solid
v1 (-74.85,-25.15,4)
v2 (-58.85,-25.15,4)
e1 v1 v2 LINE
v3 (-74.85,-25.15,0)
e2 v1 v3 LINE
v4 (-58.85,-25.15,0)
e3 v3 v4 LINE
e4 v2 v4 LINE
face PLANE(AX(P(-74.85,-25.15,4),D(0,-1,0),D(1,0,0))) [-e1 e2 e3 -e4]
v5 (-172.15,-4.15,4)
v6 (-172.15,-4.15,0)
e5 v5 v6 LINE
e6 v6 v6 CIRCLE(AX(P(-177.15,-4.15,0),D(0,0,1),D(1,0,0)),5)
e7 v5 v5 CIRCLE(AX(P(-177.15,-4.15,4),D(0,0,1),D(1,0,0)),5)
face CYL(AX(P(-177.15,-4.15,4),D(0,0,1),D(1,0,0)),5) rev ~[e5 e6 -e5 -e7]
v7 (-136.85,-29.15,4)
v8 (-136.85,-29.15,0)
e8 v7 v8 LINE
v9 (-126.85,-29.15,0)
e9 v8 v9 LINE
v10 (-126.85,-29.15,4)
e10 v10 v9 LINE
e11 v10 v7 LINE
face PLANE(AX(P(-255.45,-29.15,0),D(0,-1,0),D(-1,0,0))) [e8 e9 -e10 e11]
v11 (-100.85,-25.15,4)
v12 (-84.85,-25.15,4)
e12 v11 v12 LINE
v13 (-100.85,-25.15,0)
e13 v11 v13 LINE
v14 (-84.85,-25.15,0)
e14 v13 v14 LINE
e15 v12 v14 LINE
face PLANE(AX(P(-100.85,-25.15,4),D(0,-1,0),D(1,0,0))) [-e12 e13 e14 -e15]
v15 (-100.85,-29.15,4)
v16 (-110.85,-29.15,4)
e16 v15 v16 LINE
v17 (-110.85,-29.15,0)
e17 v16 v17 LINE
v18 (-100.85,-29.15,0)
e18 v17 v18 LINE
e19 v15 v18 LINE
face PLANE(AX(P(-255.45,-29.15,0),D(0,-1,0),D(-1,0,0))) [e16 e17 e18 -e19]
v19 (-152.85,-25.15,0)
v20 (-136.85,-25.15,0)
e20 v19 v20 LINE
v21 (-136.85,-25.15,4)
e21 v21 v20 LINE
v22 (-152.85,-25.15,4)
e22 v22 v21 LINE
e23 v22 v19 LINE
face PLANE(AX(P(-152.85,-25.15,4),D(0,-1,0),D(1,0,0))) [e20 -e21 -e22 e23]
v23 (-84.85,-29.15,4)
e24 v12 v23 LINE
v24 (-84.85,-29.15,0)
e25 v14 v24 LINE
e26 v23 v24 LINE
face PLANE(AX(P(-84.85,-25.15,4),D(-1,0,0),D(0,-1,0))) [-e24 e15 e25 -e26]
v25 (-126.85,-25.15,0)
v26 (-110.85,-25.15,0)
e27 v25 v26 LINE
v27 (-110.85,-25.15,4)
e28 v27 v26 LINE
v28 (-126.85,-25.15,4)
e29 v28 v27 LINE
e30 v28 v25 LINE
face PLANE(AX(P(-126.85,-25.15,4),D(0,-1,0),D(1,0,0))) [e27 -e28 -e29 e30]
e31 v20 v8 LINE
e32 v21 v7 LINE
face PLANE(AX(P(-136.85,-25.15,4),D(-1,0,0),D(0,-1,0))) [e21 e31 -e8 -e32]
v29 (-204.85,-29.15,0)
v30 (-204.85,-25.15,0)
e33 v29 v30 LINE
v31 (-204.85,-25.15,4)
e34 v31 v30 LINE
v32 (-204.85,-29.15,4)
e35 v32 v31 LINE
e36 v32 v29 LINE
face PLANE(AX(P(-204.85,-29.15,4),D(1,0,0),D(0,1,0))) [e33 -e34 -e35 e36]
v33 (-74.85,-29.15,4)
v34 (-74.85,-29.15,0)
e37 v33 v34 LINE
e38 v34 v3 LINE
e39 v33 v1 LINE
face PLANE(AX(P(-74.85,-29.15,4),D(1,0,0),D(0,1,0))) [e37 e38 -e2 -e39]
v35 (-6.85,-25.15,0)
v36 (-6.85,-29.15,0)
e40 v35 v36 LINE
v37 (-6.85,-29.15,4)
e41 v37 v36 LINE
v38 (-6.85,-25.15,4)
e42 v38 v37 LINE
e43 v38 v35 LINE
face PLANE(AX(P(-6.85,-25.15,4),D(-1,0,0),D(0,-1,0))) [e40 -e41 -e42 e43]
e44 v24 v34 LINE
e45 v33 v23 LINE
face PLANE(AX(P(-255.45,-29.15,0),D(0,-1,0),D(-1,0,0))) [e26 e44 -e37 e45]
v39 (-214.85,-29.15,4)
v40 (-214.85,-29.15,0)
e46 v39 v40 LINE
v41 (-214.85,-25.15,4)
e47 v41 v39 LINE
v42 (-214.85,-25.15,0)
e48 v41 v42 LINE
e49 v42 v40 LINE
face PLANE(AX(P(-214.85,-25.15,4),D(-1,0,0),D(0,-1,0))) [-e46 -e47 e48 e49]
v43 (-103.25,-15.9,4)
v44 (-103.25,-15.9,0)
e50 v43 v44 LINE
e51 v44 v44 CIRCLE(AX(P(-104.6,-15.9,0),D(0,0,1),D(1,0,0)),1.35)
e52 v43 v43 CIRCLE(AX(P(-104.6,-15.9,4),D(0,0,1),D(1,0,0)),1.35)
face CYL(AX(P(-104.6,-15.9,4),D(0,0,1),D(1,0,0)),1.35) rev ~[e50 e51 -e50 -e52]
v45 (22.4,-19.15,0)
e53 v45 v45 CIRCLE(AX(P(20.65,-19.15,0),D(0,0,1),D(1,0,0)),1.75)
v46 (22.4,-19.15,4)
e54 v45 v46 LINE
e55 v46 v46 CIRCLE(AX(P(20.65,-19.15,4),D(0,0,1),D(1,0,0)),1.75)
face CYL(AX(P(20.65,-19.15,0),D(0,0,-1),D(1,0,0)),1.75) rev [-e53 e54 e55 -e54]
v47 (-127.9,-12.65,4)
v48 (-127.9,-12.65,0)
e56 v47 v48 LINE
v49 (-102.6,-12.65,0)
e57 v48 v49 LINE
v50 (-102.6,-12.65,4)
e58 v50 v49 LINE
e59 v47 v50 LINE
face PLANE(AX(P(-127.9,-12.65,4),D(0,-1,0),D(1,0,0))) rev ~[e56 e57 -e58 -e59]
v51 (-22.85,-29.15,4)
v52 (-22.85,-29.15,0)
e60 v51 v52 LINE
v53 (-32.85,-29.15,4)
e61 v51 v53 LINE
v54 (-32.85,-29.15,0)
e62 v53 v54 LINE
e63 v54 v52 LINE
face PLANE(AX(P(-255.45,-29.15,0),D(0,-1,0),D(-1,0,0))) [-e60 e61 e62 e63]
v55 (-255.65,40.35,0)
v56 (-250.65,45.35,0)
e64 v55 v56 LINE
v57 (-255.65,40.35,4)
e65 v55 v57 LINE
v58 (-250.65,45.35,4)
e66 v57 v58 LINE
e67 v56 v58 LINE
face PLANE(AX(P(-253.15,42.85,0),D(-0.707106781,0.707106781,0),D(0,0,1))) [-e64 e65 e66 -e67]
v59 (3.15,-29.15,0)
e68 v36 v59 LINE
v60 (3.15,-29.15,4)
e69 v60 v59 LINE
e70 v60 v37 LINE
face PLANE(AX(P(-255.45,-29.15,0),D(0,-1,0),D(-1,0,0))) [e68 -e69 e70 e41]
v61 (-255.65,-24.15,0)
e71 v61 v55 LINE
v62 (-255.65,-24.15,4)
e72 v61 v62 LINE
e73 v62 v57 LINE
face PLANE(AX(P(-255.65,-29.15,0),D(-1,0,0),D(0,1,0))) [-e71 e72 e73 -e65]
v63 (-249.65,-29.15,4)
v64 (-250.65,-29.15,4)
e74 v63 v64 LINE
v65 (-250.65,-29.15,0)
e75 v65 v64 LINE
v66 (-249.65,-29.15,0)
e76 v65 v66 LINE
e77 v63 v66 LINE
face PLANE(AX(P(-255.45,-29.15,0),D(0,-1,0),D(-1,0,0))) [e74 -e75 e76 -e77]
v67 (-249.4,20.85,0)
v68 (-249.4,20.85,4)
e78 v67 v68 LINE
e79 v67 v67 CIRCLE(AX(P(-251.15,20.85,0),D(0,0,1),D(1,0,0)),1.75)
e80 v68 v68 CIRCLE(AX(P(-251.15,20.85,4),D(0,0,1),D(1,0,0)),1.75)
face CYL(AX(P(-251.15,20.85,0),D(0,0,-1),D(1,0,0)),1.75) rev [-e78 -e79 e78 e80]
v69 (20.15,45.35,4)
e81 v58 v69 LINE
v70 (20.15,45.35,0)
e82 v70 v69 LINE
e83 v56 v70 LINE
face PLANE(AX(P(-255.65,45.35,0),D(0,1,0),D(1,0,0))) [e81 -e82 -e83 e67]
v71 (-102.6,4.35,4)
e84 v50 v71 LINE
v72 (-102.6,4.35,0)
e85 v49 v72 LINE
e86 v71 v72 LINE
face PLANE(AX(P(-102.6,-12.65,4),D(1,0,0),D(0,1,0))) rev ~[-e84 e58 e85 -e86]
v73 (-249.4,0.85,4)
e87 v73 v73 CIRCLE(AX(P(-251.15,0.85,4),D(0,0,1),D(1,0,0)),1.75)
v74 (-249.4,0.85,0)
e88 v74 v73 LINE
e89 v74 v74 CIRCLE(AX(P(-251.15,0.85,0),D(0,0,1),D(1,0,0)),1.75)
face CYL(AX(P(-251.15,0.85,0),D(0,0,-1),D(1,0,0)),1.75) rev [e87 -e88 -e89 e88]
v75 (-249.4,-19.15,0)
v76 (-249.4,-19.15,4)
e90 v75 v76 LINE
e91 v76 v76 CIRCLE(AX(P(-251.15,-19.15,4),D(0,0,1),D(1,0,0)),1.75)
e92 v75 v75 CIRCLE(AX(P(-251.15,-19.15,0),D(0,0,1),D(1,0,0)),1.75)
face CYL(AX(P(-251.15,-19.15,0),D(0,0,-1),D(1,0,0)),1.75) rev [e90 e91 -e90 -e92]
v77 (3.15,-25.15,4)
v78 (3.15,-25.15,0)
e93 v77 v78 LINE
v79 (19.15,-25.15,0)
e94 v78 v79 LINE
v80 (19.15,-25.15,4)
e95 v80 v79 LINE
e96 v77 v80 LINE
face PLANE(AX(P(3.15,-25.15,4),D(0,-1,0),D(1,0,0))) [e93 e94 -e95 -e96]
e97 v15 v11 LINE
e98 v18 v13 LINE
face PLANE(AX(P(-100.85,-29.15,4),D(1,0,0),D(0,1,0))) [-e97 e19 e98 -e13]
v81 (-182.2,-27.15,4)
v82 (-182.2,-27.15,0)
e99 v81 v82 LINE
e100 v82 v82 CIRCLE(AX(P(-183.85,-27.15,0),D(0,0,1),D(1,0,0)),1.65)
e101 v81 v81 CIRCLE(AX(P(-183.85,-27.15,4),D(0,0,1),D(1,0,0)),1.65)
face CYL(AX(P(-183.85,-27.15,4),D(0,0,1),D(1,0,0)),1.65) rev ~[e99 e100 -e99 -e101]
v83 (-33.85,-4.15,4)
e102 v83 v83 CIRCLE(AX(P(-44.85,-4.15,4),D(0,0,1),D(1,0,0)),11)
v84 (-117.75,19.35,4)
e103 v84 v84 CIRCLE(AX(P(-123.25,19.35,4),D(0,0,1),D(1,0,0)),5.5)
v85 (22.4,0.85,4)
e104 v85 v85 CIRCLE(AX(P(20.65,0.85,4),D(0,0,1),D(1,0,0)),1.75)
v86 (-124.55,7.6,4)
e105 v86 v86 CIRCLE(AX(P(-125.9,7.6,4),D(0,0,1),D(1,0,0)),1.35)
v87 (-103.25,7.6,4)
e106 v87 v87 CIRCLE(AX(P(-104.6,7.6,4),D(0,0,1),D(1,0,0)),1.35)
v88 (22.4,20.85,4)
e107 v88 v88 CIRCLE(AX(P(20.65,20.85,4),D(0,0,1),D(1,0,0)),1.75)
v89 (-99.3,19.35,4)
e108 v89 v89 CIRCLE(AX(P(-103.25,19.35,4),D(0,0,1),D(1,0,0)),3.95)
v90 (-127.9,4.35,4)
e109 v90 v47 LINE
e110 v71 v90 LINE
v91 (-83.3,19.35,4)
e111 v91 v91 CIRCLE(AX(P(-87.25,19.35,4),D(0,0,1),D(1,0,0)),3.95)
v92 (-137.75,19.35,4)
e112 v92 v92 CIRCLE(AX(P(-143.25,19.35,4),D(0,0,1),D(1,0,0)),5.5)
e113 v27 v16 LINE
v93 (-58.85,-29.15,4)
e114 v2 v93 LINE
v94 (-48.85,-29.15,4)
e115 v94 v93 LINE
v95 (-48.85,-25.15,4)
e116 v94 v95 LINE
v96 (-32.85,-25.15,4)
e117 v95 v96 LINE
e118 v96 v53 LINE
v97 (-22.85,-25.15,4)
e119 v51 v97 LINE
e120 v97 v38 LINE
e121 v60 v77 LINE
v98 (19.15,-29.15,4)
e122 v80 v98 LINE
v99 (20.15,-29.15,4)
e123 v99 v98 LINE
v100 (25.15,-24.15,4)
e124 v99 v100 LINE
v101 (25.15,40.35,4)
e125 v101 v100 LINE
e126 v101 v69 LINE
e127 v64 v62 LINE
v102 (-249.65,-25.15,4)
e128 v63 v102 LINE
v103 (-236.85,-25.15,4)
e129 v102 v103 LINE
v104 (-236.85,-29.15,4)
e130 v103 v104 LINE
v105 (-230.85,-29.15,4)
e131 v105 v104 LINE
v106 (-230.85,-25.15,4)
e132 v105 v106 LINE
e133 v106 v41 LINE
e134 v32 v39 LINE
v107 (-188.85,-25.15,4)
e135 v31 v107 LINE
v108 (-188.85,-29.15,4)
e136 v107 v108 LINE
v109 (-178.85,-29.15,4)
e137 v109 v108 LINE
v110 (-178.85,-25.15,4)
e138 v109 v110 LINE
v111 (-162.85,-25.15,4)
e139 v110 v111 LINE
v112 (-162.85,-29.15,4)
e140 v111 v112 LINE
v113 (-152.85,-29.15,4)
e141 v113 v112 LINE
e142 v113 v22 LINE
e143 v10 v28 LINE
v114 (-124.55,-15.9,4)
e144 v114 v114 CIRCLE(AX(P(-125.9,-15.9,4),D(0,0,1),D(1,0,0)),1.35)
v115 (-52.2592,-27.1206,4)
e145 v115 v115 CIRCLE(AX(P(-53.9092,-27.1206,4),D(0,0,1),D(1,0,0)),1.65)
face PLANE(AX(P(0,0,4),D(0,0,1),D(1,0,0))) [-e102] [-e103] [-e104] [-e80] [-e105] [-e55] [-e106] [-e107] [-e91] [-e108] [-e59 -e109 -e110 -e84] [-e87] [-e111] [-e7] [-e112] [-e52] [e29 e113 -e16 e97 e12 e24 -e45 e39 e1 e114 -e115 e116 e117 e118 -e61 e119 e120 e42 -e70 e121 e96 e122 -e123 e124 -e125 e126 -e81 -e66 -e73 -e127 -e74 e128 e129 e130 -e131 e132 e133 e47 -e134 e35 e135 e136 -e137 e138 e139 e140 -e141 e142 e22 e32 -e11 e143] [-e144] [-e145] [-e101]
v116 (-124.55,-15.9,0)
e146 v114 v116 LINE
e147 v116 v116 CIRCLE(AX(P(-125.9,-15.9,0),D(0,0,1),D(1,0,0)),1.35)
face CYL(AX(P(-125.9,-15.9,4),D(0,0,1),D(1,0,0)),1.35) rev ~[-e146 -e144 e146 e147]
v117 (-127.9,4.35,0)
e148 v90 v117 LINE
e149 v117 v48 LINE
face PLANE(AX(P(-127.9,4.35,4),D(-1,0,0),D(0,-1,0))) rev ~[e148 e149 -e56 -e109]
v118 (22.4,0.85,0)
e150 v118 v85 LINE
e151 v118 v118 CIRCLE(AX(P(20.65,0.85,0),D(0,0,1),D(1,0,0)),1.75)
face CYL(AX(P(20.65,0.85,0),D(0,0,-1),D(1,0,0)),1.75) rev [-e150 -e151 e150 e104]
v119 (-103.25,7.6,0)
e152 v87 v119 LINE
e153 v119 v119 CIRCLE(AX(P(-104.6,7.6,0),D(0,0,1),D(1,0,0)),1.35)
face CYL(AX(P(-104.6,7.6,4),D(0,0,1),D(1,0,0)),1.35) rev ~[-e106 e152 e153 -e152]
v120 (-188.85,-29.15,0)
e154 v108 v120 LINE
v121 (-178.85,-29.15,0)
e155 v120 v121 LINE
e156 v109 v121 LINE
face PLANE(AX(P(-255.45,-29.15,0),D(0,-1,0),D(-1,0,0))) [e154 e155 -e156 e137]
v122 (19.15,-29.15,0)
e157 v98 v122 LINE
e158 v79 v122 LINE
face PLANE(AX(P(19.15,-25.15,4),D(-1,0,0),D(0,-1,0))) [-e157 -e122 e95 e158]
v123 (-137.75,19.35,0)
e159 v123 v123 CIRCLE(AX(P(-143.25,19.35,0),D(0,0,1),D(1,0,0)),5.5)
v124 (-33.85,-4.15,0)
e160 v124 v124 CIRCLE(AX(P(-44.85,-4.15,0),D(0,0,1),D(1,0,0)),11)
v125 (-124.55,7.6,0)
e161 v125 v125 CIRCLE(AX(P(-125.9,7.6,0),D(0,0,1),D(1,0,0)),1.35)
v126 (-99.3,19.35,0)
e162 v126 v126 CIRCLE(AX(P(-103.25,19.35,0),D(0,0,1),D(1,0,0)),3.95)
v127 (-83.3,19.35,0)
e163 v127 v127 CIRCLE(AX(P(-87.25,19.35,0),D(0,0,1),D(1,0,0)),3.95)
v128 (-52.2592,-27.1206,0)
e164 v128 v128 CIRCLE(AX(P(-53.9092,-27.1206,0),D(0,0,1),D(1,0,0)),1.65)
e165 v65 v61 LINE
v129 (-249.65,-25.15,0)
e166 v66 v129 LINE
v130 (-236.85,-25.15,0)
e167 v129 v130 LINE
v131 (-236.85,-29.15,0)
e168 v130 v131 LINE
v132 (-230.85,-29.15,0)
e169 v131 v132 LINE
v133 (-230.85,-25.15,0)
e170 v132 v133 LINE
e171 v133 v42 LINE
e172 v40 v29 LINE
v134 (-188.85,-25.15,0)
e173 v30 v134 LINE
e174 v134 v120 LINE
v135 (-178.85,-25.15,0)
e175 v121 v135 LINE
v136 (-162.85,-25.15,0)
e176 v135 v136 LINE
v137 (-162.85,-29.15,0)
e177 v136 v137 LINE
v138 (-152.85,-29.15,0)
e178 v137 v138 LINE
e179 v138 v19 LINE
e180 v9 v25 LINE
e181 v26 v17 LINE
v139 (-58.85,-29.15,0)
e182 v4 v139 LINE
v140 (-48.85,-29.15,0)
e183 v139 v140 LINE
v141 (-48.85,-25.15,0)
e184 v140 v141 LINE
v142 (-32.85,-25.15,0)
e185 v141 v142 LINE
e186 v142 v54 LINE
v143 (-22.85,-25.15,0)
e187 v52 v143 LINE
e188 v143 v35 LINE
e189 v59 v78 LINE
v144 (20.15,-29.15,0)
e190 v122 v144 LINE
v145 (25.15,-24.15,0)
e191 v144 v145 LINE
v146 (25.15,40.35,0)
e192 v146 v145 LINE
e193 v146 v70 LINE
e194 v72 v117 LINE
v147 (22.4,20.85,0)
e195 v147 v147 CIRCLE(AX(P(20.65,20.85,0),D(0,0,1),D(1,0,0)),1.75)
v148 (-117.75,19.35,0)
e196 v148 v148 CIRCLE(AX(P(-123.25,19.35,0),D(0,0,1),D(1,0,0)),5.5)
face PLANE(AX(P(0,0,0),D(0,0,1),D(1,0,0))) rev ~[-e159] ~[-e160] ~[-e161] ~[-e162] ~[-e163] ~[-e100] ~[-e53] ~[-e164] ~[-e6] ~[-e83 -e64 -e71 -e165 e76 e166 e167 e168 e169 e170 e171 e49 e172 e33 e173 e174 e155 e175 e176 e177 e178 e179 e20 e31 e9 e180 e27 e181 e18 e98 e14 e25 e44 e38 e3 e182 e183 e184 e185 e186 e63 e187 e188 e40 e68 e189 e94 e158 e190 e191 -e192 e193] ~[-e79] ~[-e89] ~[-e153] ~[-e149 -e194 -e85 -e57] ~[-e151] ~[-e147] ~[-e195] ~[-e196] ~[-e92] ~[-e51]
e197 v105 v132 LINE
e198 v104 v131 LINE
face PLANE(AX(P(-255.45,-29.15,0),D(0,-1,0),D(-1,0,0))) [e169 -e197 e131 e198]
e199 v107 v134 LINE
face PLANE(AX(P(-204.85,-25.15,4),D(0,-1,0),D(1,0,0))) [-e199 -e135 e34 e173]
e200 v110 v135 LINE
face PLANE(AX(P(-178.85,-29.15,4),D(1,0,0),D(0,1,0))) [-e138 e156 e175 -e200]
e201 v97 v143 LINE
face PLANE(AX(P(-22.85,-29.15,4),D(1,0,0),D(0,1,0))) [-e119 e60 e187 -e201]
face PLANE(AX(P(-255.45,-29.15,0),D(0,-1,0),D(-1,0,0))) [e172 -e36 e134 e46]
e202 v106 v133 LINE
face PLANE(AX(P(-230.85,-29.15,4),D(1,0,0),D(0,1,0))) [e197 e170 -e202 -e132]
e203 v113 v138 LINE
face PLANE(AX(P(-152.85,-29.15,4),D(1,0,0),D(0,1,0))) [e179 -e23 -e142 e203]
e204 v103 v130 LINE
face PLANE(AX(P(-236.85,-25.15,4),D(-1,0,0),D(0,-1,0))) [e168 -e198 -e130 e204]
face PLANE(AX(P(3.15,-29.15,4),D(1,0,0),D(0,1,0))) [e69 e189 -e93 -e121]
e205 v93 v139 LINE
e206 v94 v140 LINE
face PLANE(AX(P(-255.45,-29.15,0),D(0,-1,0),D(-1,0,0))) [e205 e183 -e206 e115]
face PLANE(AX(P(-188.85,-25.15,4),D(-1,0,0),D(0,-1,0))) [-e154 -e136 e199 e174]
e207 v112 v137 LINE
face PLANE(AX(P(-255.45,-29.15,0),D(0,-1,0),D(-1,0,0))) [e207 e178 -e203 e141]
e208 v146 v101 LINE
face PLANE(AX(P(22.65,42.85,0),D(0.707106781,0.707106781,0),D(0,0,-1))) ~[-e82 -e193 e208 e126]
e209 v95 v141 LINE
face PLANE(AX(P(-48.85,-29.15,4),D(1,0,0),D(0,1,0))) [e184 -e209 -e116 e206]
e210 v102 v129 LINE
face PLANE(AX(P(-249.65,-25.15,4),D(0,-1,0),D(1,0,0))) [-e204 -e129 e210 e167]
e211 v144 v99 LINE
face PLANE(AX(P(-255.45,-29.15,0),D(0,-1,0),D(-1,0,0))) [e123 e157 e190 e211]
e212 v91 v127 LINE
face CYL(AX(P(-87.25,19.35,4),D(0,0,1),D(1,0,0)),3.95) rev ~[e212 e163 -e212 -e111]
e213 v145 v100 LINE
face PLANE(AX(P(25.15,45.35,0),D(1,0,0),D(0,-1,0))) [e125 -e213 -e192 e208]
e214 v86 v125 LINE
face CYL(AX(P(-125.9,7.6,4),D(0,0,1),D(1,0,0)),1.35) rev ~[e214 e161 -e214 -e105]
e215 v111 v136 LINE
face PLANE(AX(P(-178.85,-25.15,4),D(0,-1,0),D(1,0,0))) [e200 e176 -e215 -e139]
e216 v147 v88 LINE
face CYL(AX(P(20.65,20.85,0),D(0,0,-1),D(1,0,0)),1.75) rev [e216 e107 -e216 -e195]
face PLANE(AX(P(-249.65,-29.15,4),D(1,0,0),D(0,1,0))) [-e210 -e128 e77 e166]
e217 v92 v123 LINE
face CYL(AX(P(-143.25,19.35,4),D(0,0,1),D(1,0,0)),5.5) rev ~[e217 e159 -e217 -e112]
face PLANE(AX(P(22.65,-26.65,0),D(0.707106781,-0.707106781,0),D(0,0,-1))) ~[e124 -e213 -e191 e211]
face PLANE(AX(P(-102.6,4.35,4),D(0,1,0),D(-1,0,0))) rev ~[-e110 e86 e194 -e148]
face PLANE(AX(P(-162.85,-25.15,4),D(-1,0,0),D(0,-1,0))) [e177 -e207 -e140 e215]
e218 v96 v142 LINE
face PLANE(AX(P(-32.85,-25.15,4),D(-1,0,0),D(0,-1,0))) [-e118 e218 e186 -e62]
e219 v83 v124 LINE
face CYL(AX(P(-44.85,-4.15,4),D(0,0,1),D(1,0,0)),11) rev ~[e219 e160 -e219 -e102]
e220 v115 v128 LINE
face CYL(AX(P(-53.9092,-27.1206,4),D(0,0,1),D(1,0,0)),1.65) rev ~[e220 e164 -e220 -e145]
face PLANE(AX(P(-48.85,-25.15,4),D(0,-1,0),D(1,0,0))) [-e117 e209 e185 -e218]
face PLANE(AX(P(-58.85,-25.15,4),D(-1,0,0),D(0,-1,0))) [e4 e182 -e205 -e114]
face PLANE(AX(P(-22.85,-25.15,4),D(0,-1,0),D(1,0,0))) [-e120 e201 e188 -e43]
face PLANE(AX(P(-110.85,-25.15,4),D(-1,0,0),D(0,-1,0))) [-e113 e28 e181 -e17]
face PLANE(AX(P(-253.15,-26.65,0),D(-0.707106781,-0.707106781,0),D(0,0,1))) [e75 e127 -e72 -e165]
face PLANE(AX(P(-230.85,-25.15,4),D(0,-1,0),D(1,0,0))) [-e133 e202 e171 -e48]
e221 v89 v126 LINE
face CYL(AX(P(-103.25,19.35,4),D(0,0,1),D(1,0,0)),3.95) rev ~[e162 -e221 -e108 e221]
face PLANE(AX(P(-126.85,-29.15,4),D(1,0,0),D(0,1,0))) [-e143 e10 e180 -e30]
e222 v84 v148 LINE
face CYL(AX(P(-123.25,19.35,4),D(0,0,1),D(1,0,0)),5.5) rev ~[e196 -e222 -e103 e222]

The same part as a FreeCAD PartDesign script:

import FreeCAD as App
import Part
import Sketcher


def edges_at(feature, points):
    """Names of the edges that pass closest to the given points."""
    edges = feature.Shape.Edges
    near = lambda p: min(range(len(edges)), key=lambda i: edges[i].distToShape(Part.Vertex(*p))[0])
    return sorted({f"Edge{near(p) + 1}" for p in points})

doc = App.newDocument("Part")
params = doc.addObject("Spreadsheet::Sheet", "Params")
for row, (alias, value) in enumerate([
    ("sketch1_diameter", "3.5 mm"),
    ("sketch1_width", "280.8 mm"),
    ("sketch1_height", "74.5 mm"),
    ("pad1_length", "4 mm"),
    ("sketch2_diameter", "10 mm"),
    ("pocket1_length", "10 mm"),
    ("sketch3_diameter", "2.7 mm"),
    ("sketch3_height", "17 mm"),
    ("sketch3_width", "25.3 mm"),
    ("pocket2_length", "10 mm"),
    ("sketch4_diameter", "22 mm"),
    ("sketch4_diameter2", "11 mm"),
    ("sketch4_diameter3", "7.9 mm"),
    ("pocket3_length", "10 mm"),
    ("chamfer_size", "5 mm"),
    ("sketch5_width", "16 mm"),
    ("sketch5_height", "4 mm"),
    ("sketch5_width2", "12.8 mm"),
    ("pocket4_length", "4 mm"),
    ("sketch6_diameter", "3.3 mm"),
    ("pocket5_length", "4 mm"),
], start=1):
    params.set(f"A{row}", alias)
    params.set(f"B{row}", "=" + value)
    params.setAlias(f"B{row}", alias)

body = doc.addObject("PartDesign::Body", "Body")

sketch1 = doc.addObject("Sketcher::SketchObject", "Sketch")
body.addObject(sketch1)
sketch1.AttachmentSupport = (doc.XY_Plane, [""])
sketch1.MapMode = "FlatFace"
sketch1.addGeometry(Part.LineSegment(App.Vector(-255.7, -29.1, 0), App.Vector(25.1, -29.1, 0)), False)
sketch1.addGeometry(Part.LineSegment(App.Vector(25.1, -29.1, 0), App.Vector(25.1, 45.4, 0)), False)
sketch1.addGeometry(Part.LineSegment(App.Vector(25.1, 45.4, 0), App.Vector(-255.7, 45.4, 0)), False)
sketch1.addGeometry(Part.LineSegment(App.Vector(-255.7, 45.4, 0), App.Vector(-255.7, -29.1, 0)), False)
sketch1.addGeometry(Part.Circle(App.Vector(-251.2, -19.1, 0), App.Vector(0, 0, 1), 1.8), False)
sketch1.addGeometry(Part.Circle(App.Vector(-251.2, 0.8, 0), App.Vector(0, 0, 1), 1.8), False)
sketch1.addGeometry(Part.Circle(App.Vector(20.6, -19.1, 0), App.Vector(0, 0, 1), 1.8), False)
sketch1.addGeometry(Part.Circle(App.Vector(20.6, 0.8, 0), App.Vector(0, 0, 1), 1.8), False)
sketch1.addGeometry(Part.Circle(App.Vector(-251.2, 20.9, 0), App.Vector(0, 0, 1), 1.8), False)
sketch1.addGeometry(Part.Circle(App.Vector(20.6, 20.9, 0), App.Vector(0, 0, 1), 1.8), False)
sketch1.addConstraint(Sketcher.Constraint("Coincident", 0, 2, 1, 1))
sketch1.addConstraint(Sketcher.Constraint("Coincident", 1, 2, 2, 1))
sketch1.addConstraint(Sketcher.Constraint("Coincident", 2, 2, 3, 1))
sketch1.addConstraint(Sketcher.Constraint("Coincident", 3, 2, 0, 1))
sketch1.addConstraint(Sketcher.Constraint("Horizontal", 0))
sketch1.addConstraint(Sketcher.Constraint("Vertical", 1))
sketch1.addConstraint(Sketcher.Constraint("Horizontal", 2))
sketch1.addConstraint(Sketcher.Constraint("Vertical", 3))
sketch1.addConstraint(Sketcher.Constraint("Equal", 4, 5))
sketch1.addConstraint(Sketcher.Constraint("Equal", 5, 6))
sketch1.addConstraint(Sketcher.Constraint("Equal", 6, 7))
sketch1.addConstraint(Sketcher.Constraint("Equal", 7, 8))
sketch1.addConstraint(Sketcher.Constraint("Equal", 8, 9))
sketch1.addConstraint(Sketcher.Constraint("Horizontal", 4, 3, 6, 3))
sketch1.addConstraint(Sketcher.Constraint("Horizontal", 5, 3, 7, 3))
sketch1.addConstraint(Sketcher.Constraint("Horizontal", 8, 3, 9, 3))
sketch1.addConstraint(Sketcher.Constraint("Vertical", 4, 3, 5, 3))
sketch1.addConstraint(Sketcher.Constraint("Vertical", 6, 3, 7, 3))
sketch1.addConstraint(Sketcher.Constraint("Vertical", 5, 3, 8, 3))
sketch1.addConstraint(Sketcher.Constraint("Vertical", 7, 3, 9, 3))
sketch1.addConstraint(Sketcher.Constraint("Diameter", 4, 3.5))
sketch1.addConstraint(Sketcher.Constraint("DistanceX", 0, 1, 0, 2, 280.8))
sketch1.addConstraint(Sketcher.Constraint("DistanceY", 1, 1, 1, 2, 74.5))
sketch1.addConstraint(Sketcher.Constraint("DistanceY", 4, 3, 5, 3, 20.0))
sketch1.addConstraint(Sketcher.Constraint("DistanceY", 5, 3, 8, 3, 20.0))
sketch1.addConstraint(Sketcher.Constraint("DistanceY", 0, 2, 6, 3, 10.0))
sketch1.addConstraint(Sketcher.Constraint("DistanceX", 4, 3, 6, 3, 271.8))
sketch1.addConstraint(Sketcher.Constraint("DistanceX", 6, 3, 0, 2, 4.5))
sketch1.addConstraint(Sketcher.Constraint("DistanceX", 4, 3, -1, 1, 251.15))
sketch1.addConstraint(Sketcher.Constraint("DistanceY", 4, 3, -1, 1, 19.15))
sketch1.setExpression("Constraints[20]", "Params.sketch1_diameter")
sketch1.setExpression("Constraints[21]", "Params.sketch1_width")
sketch1.setExpression("Constraints[22]", "Params.sketch1_height")
pad1 = doc.addObject("PartDesign::Pad", "Pad")
body.addObject(pad1)
pad1.Profile = sketch1
pad1.setExpression("Length", "Params.pad1_length")

sketch2 = doc.addObject("Sketcher::SketchObject", "Sketch001")
body.addObject(sketch2)
sketch2.AttachmentSupport = (doc.XY_Plane, [""])
sketch2.MapMode = "FlatFace"
sketch2.AttachmentOffset = App.Placement(App.Vector(0, 0, 4), App.Rotation())
sketch2.addGeometry(Part.Circle(App.Vector(-177, -4, 0), App.Vector(0, 0, 1), 5), False)
sketch2.addConstraint(Sketcher.Constraint("Diameter", 0, 10.0))
sketch2.addConstraint(Sketcher.Constraint("DistanceX", 0, 3, -1, 1, 177.15))
sketch2.addConstraint(Sketcher.Constraint("DistanceY", 0, 3, -1, 1, 4.15))
sketch2.setExpression("Constraints[0]", "Params.sketch2_diameter")
pocket1 = doc.addObject("PartDesign::Pocket", "Pocket")
body.addObject(pocket1)
pocket1.Profile = sketch2
pocket1.setExpression("Length", "Params.pocket1_length")

sketch3 = doc.addObject("Sketcher::SketchObject", "Sketch002")
body.addObject(sketch3)
sketch3.AttachmentSupport = (doc.XY_Plane, [""])
sketch3.MapMode = "FlatFace"
sketch3.AttachmentOffset = App.Placement(App.Vector(0, 0, 4), App.Rotation())
sketch3.addGeometry(Part.LineSegment(App.Vector(-127.9, 4.3, 0), App.Vector(-127.9, -12.7, 0)), False)
sketch3.addGeometry(Part.LineSegment(App.Vector(-127.9, -12.7, 0), App.Vector(-102.6, -12.7, 0)), False)
sketch3.addGeometry(Part.LineSegment(App.Vector(-102.6, -12.7, 0), App.Vector(-102.6, 4.3, 0)), False)
sketch3.addGeometry(Part.LineSegment(App.Vector(-102.6, 4.3, 0), App.Vector(-127.9, 4.3, 0)), False)
sketch3.addGeometry(Part.Circle(App.Vector(-125.9, -15.9, 0), App.Vector(0, 0, 1), 1.4), False)
sketch3.addGeometry(Part.Circle(App.Vector(-104.6, -15.9, 0), App.Vector(0, 0, 1), 1.4), False)
sketch3.addGeometry(Part.Circle(App.Vector(-125.9, 7.6, 0), App.Vector(0, 0, 1), 1.4), False)
sketch3.addGeometry(Part.Circle(App.Vector(-104.6, 7.6, 0), App.Vector(0, 0, 1), 1.4), False)
sketch3.addConstraint(Sketcher.Constraint("Coincident", 0, 2, 1, 1))
sketch3.addConstraint(Sketcher.Constraint("Coincident", 1, 2, 2, 1))
sketch3.addConstraint(Sketcher.Constraint("Coincident", 2, 2, 3, 1))
sketch3.addConstraint(Sketcher.Constraint("Coincident", 3, 2, 0, 1))
sketch3.addConstraint(Sketcher.Constraint("Vertical", 0))
sketch3.addConstraint(Sketcher.Constraint("Horizontal", 1))
sketch3.addConstraint(Sketcher.Constraint("Vertical", 2))
sketch3.addConstraint(Sketcher.Constraint("Horizontal", 3))
sketch3.addConstraint(Sketcher.Constraint("Equal", 4, 5))
sketch3.addConstraint(Sketcher.Constraint("Equal", 5, 6))
sketch3.addConstraint(Sketcher.Constraint("Equal", 6, 7))
sketch3.addConstraint(Sketcher.Constraint("Horizontal", 4, 3, 5, 3))
sketch3.addConstraint(Sketcher.Constraint("Horizontal", 6, 3, 7, 3))
sketch3.addConstraint(Sketcher.Constraint("Vertical", 4, 3, 6, 3))
sketch3.addConstraint(Sketcher.Constraint("Vertical", 5, 3, 7, 3))
sketch3.addConstraint(Sketcher.Constraint("Diameter", 4, 2.7))
sketch3.addConstraint(Sketcher.Constraint("DistanceY", 0, 2, 0, 1, 17.0))
sketch3.addConstraint(Sketcher.Constraint("DistanceX", 1, 1, 1, 2, 25.3))
sketch3.addConstraint(Sketcher.Constraint("DistanceX", 0, 2, 4, 3, 2.0))
sketch3.addConstraint(Sketcher.Constraint("DistanceX", 5, 3, 1, 2, 2.0))
sketch3.addConstraint(Sketcher.Constraint("DistanceY", 4, 3, 0, 2, 3.25))
sketch3.addConstraint(Sketcher.Constraint("DistanceY", 2, 2, 7, 3, 3.25))
sketch3.addConstraint(Sketcher.Constraint("DistanceX", 4, 3, -1, 1, 125.9))
sketch3.addConstraint(Sketcher.Constraint("DistanceY", 4, 3, -1, 1, 15.9))
sketch3.setExpression("Constraints[15]", "Params.sketch3_diameter")
sketch3.setExpression("Constraints[16]", "Params.sketch3_height")
sketch3.setExpression("Constraints[17]", "Params.sketch3_width")
pocket2 = doc.addObject("PartDesign::Pocket", "Pocket001")
body.addObject(pocket2)
pocket2.Profile = sketch3
pocket2.setExpression("Length", "Params.pocket2_length")

sketch4 = doc.addObject("Sketcher::SketchObject", "Sketch003")
body.addObject(sketch4)
sketch4.AttachmentSupport = (doc.XY_Plane, [""])
sketch4.MapMode = "FlatFace"
sketch4.AttachmentOffset = App.Placement(App.Vector(0, 0, 4), App.Rotation())
sketch4.addGeometry(Part.Circle(App.Vector(-44.9, -4.2, 0), App.Vector(0, 0, 1), 11), False)
sketch4.addGeometry(Part.Circle(App.Vector(-87.2, 19.4, 0), App.Vector(0, 0, 1), 4), False)
sketch4.addGeometry(Part.Circle(App.Vector(-103.2, 19.4, 0), App.Vector(0, 0, 1), 4), False)
sketch4.addGeometry(Part.Circle(App.Vector(-123.2, 19.4, 0), App.Vector(0, 0, 1), 5.5), False)
sketch4.addGeometry(Part.Circle(App.Vector(-143.2, 19.4, 0), App.Vector(0, 0, 1), 5.5), False)
sketch4.addConstraint(Sketcher.Constraint("Equal", 1, 2))
sketch4.addConstraint(Sketcher.Constraint("Equal", 3, 4))
sketch4.addConstraint(Sketcher.Constraint("Horizontal", 1, 3, 2, 3))
sketch4.addConstraint(Sketcher.Constraint("Horizontal", 2, 3, 3, 3))
sketch4.addConstraint(Sketcher.Constraint("Horizontal", 3, 3, 4, 3))
sketch4.addConstraint(Sketcher.Constraint("Diameter", 0, 22.0))
sketch4.addConstraint(Sketcher.Constraint("Diameter", 3, 11.0))
sketch4.addConstraint(Sketcher.Constraint("Diameter", 1, 7.9))
sketch4.addConstraint(Sketcher.Constraint("DistanceX", 2, 3, 1, 3, 16.0))
sketch4.addConstraint(Sketcher.Constraint("DistanceX", 3, 3, 2, 3, 20.0))
sketch4.addConstraint(Sketcher.Constraint("DistanceX", 4, 3, 3, 3, 20.0))
sketch4.addConstraint(Sketcher.Constraint("DistanceX", 1, 3, 0, 3, 42.4))
sketch4.addConstraint(Sketcher.Constraint("DistanceY", 0, 3, 1, 3, 23.5))
sketch4.addConstraint(Sketcher.Constraint("DistanceX", 0, 3, -1, 1, 44.85))
sketch4.addConstraint(Sketcher.Constraint("DistanceY", 0, 3, -1, 1, 4.15))
sketch4.setExpression("Constraints[5]", "Params.sketch4_diameter")
sketch4.setExpression("Constraints[6]", "Params.sketch4_diameter2")
sketch4.setExpression("Constraints[7]", "Params.sketch4_diameter3")
pocket3 = doc.addObject("PartDesign::Pocket", "Pocket002")
body.addObject(pocket3)
pocket3.Profile = sketch4
pocket3.setExpression("Length", "Params.pocket3_length")
doc.recompute()

chamfer = doc.addObject("PartDesign::Chamfer", "Chamfer")
body.addObject(chamfer)
chamfer.Base = (pocket3, edges_at(pocket3, [
    (25.15, 45.35, 2),
    (-255.65, 45.35, 2),
    (-255.65, -29.15, 2),
    (25.15, -29.15, 2),
]))
chamfer.setExpression("Size", "Params.chamfer_size")

sketch5 = doc.addObject("Sketcher::SketchObject", "Sketch004")
body.addObject(sketch5)
sketch5.AttachmentSupport = (doc.XY_Plane, [""])
sketch5.MapMode = "FlatFace"
sketch5.AttachmentOffset = App.Placement(App.Vector(0, 0, 4), App.Rotation())
sketch5.addGeometry(Part.LineSegment(App.Vector(-100.8, -25.1, 0), App.Vector(-100.8, -29.1, 0)), False)
sketch5.addGeometry(Part.LineSegment(App.Vector(-100.8, -29.1, 0), App.Vector(-84.8, -29.1, 0)), False)
sketch5.addGeometry(Part.LineSegment(App.Vector(-84.8, -29.1, 0), App.Vector(-84.8, -25.1, 0)), False)
sketch5.addGeometry(Part.LineSegment(App.Vector(-84.8, -25.1, 0), App.Vector(-100.8, -25.1, 0)), False)
sketch5.addGeometry(Part.LineSegment(App.Vector(-48.9, -25.1, 0), App.Vector(-48.9, -29.1, 0)), False)
sketch5.addGeometry(Part.LineSegment(App.Vector(-48.9, -29.1, 0), App.Vector(-32.9, -29.1, 0)), False)
sketch5.addGeometry(Part.LineSegment(App.Vector(-32.9, -29.1, 0), App.Vector(-32.9, -25.1, 0)), False)
sketch5.addGeometry(Part.LineSegment(App.Vector(-32.9, -25.1, 0), App.Vector(-48.9, -25.1, 0)), False)
sketch5.addGeometry(Part.LineSegment(App.Vector(19.1, -29.1, 0), App.Vector(19.1, -25.1, 0)), False)
sketch5.addGeometry(Part.LineSegment(App.Vector(19.1, -25.1, 0), App.Vector(3.1, -25.1, 0)), False)
sketch5.addGeometry(Part.LineSegment(App.Vector(3.1, -25.1, 0), App.Vector(3.1, -29.1, 0)), False)
sketch5.addGeometry(Part.LineSegment(App.Vector(3.1, -29.1, 0), App.Vector(19.1, -29.1, 0)), False)
sketch5.addGeometry(Part.LineSegment(App.Vector(-204.8, -25.1, 0), App.Vector(-204.8, -29.1, 0)), False)
sketch5.addGeometry(Part.LineSegment(App.Vector(-204.8, -29.1, 0), App.Vector(-188.8, -29.1, 0)), False)
sketch5.addGeometry(Part.LineSegment(App.Vector(-188.8, -29.1, 0), App.Vector(-188.8, -25.1, 0)), False)
sketch5.addGeometry(Part.LineSegment(App.Vector(-188.8, -25.1, 0), App.Vector(-204.8, -25.1, 0)), False)
sketch5.addGeometry(Part.LineSegment(App.Vector(-152.8, -25.1, 0), App.Vector(-152.8, -29.1, 0)), False)
sketch5.addGeometry(Part.LineSegment(App.Vector(-152.8, -29.1, 0), App.Vector(-136.8, -29.1, 0)), False)
sketch5.addGeometry(Part.LineSegment(App.Vector(-136.8, -29.1, 0), App.Vector(-136.8, -25.1, 0)), False)
sketch5.addGeometry(Part.LineSegment(App.Vector(-136.8, -25.1, 0), App.Vector(-152.8, -25.1, 0)), False)
sketch5.addGeometry(Part.LineSegment(App.Vector(-126.8, -25.1, 0), App.Vector(-126.8, -29.1, 0)), False)
sketch5.addGeometry(Part.LineSegment(App.Vector(-126.8, -29.1, 0), App.Vector(-110.8, -29.1, 0)), False)
sketch5.addGeometry(Part.LineSegment(App.Vector(-110.8, -29.1, 0), App.Vector(-110.8, -25.1, 0)), False)
sketch5.addGeometry(Part.LineSegment(App.Vector(-110.8, -25.1, 0), App.Vector(-126.8, -25.1, 0)), False)
sketch5.addGeometry(Part.LineSegment(App.Vector(-178.8, -25.1, 0), App.Vector(-178.8, -29.1, 0)), False)
sketch5.addGeometry(Part.LineSegment(App.Vector(-178.8, -29.1, 0), App.Vector(-162.8, -29.1, 0)), False)
sketch5.addGeometry(Part.LineSegment(App.Vector(-162.8, -29.1, 0), App.Vector(-162.8, -25.1, 0)), False)
sketch5.addGeometry(Part.LineSegment(App.Vector(-162.8, -25.1, 0), App.Vector(-178.8, -25.1, 0)), False)
sketch5.addGeometry(Part.LineSegment(App.Vector(-230.8, -25.1, 0), App.Vector(-230.8, -29.1, 0)), False)
sketch5.addGeometry(Part.LineSegment(App.Vector(-230.8, -29.1, 0), App.Vector(-214.8, -29.1, 0)), False)
sketch5.addGeometry(Part.LineSegment(App.Vector(-214.8, -29.1, 0), App.Vector(-214.8, -25.1, 0)), False)
sketch5.addGeometry(Part.LineSegment(App.Vector(-214.8, -25.1, 0), App.Vector(-230.8, -25.1, 0)), False)
sketch5.addGeometry(Part.LineSegment(App.Vector(-6.8, -29.1, 0), App.Vector(-6.8, -25.1, 0)), False)
sketch5.addGeometry(Part.LineSegment(App.Vector(-6.8, -25.1, 0), App.Vector(-22.9, -25.1, 0)), False)
sketch5.addGeometry(Part.LineSegment(App.Vector(-22.9, -25.1, 0), App.Vector(-22.9, -29.1, 0)), False)
sketch5.addGeometry(Part.LineSegment(App.Vector(-22.9, -29.1, 0), App.Vector(-6.8, -29.1, 0)), False)
sketch5.addGeometry(Part.LineSegment(App.Vector(-74.8, -25.1, 0), App.Vector(-74.8, -29.1, 0)), False)
sketch5.addGeometry(Part.LineSegment(App.Vector(-74.8, -29.1, 0), App.Vector(-58.9, -29.1, 0)), False)
sketch5.addGeometry(Part.LineSegment(App.Vector(-58.9, -29.1, 0), App.Vector(-58.9, -25.1, 0)), False)
sketch5.addGeometry(Part.LineSegment(App.Vector(-58.9, -25.1, 0), App.Vector(-74.8, -25.1, 0)), False)
sketch5.addGeometry(Part.LineSegment(App.Vector(-249.7, -25.1, 0), App.Vector(-249.7, -29.1, 0)), False)
sketch5.addGeometry(Part.LineSegment(App.Vector(-249.7, -29.1, 0), App.Vector(-236.8, -29.1, 0)), False)
sketch5.addGeometry(Part.LineSegment(App.Vector(-236.8, -29.1, 0), App.Vector(-236.8, -25.1, 0)), False)
sketch5.addGeometry(Part.LineSegment(App.Vector(-236.8, -25.1, 0), App.Vector(-249.7, -25.1, 0)), False)
sketch5.addConstraint(Sketcher.Constraint("Coincident", 0, 2, 1, 1))
sketch5.addConstraint(Sketcher.Constraint("Coincident", 1, 2, 2, 1))
sketch5.addConstraint(Sketcher.Constraint("Coincident", 2, 2, 3, 1))
sketch5.addConstraint(Sketcher.Constraint("Coincident", 3, 2, 0, 1))
sketch5.addConstraint(Sketcher.Constraint("Coincident", 4, 2, 5, 1))
sketch5.addConstraint(Sketcher.Constraint("Coincident", 5, 2, 6, 1))
sketch5.addConstraint(Sketcher.Constraint("Coincident", 6, 2, 7, 1))
sketch5.addConstraint(Sketcher.Constraint("Coincident", 7, 2, 4, 1))
sketch5.addConstraint(Sketcher.Constraint("Coincident", 8, 2, 9, 1))
sketch5.addConstraint(Sketcher.Constraint("Coincident", 9, 2, 10, 1))
sketch5.addConstraint(Sketcher.Constraint("Coincident", 10, 2, 11, 1))
sketch5.addConstraint(Sketcher.Constraint("Coincident", 11, 2, 8, 1))
sketch5.addConstraint(Sketcher.Constraint("Coincident", 12, 2, 13, 1))
sketch5.addConstraint(Sketcher.Constraint("Coincident", 13, 2, 14, 1))
sketch5.addConstraint(Sketcher.Constraint("Coincident", 14, 2, 15, 1))
sketch5.addConstraint(Sketcher.Constraint("Coincident", 15, 2, 12, 1))
sketch5.addConstraint(Sketcher.Constraint("Coincident", 16, 2, 17, 1))
sketch5.addConstraint(Sketcher.Constraint("Coincident", 17, 2, 18, 1))
sketch5.addConstraint(Sketcher.Constraint("Coincident", 18, 2, 19, 1))
sketch5.addConstraint(Sketcher.Constraint("Coincident", 19, 2, 16, 1))
sketch5.addConstraint(Sketcher.Constraint("Coincident", 20, 2, 21, 1))
sketch5.addConstraint(Sketcher.Constraint("Coincident", 21, 2, 22, 1))
sketch5.addConstraint(Sketcher.Constraint("Coincident", 22, 2, 23, 1))
sketch5.addConstraint(Sketcher.Constraint("Coincident", 23, 2, 20, 1))
sketch5.addConstraint(Sketcher.Constraint("Coincident", 24, 2, 25, 1))
sketch5.addConstraint(Sketcher.Constraint("Coincident", 25, 2, 26, 1))
sketch5.addConstraint(Sketcher.Constraint("Coincident", 26, 2, 27, 1))
sketch5.addConstraint(Sketcher.Constraint("Coincident", 27, 2, 24, 1))
sketch5.addConstraint(Sketcher.Constraint("Coincident", 28, 2, 29, 1))
sketch5.addConstraint(Sketcher.Constraint("Coincident", 29, 2, 30, 1))
sketch5.addConstraint(Sketcher.Constraint("Coincident", 30, 2, 31, 1))
sketch5.addConstraint(Sketcher.Constraint("Coincident", 31, 2, 28, 1))
sketch5.addConstraint(Sketcher.Constraint("Coincident", 32, 2, 33, 1))
sketch5.addConstraint(Sketcher.Constraint("Coincident", 33, 2, 34, 1))
sketch5.addConstraint(Sketcher.Constraint("Coincident", 34, 2, 35, 1))
sketch5.addConstraint(Sketcher.Constraint("Coincident", 35, 2, 32, 1))
sketch5.addConstraint(Sketcher.Constraint("Coincident", 36, 2, 37, 1))
sketch5.addConstraint(Sketcher.Constraint("Coincident", 37, 2, 38, 1))
sketch5.addConstraint(Sketcher.Constraint("Coincident", 38, 2, 39, 1))
sketch5.addConstraint(Sketcher.Constraint("Coincident", 39, 2, 36, 1))
sketch5.addConstraint(Sketcher.Constraint("Coincident", 40, 2, 41, 1))
sketch5.addConstraint(Sketcher.Constraint("Coincident", 41, 2, 42, 1))
sketch5.addConstraint(Sketcher.Constraint("Coincident", 42, 2, 43, 1))
sketch5.addConstraint(Sketcher.Constraint("Coincident", 43, 2, 40, 1))
sketch5.addConstraint(Sketcher.Constraint("Vertical", 0))
sketch5.addConstraint(Sketcher.Constraint("Horizontal", 1))
sketch5.addConstraint(Sketcher.Constraint("Vertical", 2))
sketch5.addConstraint(Sketcher.Constraint("Horizontal", 3))
sketch5.addConstraint(Sketcher.Constraint("Vertical", 4))
sketch5.addConstraint(Sketcher.Constraint("Horizontal", 5))
sketch5.addConstraint(Sketcher.Constraint("Vertical", 6))
sketch5.addConstraint(Sketcher.Constraint("Horizontal", 7))
sketch5.addConstraint(Sketcher.Constraint("Vertical", 8))
sketch5.addConstraint(Sketcher.Constraint("Horizontal", 9))
sketch5.addConstraint(Sketcher.Constraint("Vertical", 10))
sketch5.addConstraint(Sketcher.Constraint("Horizontal", 11))
sketch5.addConstraint(Sketcher.Constraint("Vertical", 12))
sketch5.addConstraint(Sketcher.Constraint("Horizontal", 13))
sketch5.addConstraint(Sketcher.Constraint("Vertical", 14))
sketch5.addConstraint(Sketcher.Constraint("Horizontal", 15))
sketch5.addConstraint(Sketcher.Constraint("Vertical", 16))
sketch5.addConstraint(Sketcher.Constraint("Horizontal", 17))
sketch5.addConstraint(Sketcher.Constraint("Vertical", 18))
sketch5.addConstraint(Sketcher.Constraint("Horizontal", 19))
sketch5.addConstraint(Sketcher.Constraint("Vertical", 20))
sketch5.addConstraint(Sketcher.Constraint("Horizontal", 21))
sketch5.addConstraint(Sketcher.Constraint("Vertical", 22))
sketch5.addConstraint(Sketcher.Constraint("Horizontal", 23))
sketch5.addConstraint(Sketcher.Constraint("Vertical", 24))
sketch5.addConstraint(Sketcher.Constraint("Horizontal", 25))
sketch5.addConstraint(Sketcher.Constraint("Vertical", 26))
sketch5.addConstraint(Sketcher.Constraint("Horizontal", 27))
sketch5.addConstraint(Sketcher.Constraint("Vertical", 28))
sketch5.addConstraint(Sketcher.Constraint("Horizontal", 29))
sketch5.addConstraint(Sketcher.Constraint("Vertical", 30))
sketch5.addConstraint(Sketcher.Constraint("Horizontal", 31))
sketch5.addConstraint(Sketcher.Constraint("Vertical", 32))
sketch5.addConstraint(Sketcher.Constraint("Horizontal", 33))
sketch5.addConstraint(Sketcher.Constraint("Vertical", 34))
sketch5.addConstraint(Sketcher.Constraint("Horizontal", 35))
sketch5.addConstraint(Sketcher.Constraint("Vertical", 36))
sketch5.addConstraint(Sketcher.Constraint("Horizontal", 37))
sketch5.addConstraint(Sketcher.Constraint("Vertical", 38))
sketch5.addConstraint(Sketcher.Constraint("Horizontal", 39))
sketch5.addConstraint(Sketcher.Constraint("Vertical", 40))
sketch5.addConstraint(Sketcher.Constraint("Horizontal", 41))
sketch5.addConstraint(Sketcher.Constraint("Vertical", 42))
sketch5.addConstraint(Sketcher.Constraint("Horizontal", 43))
sketch5.addConstraint(Sketcher.Constraint("Horizontal", 1, 2, 4, 2))
sketch5.addConstraint(Sketcher.Constraint("Horizontal", 3, 2, 6, 2))
sketch5.addConstraint(Sketcher.Constraint("Horizontal", 7, 2, 8, 2))
sketch5.addConstraint(Sketcher.Constraint("Horizontal", 5, 2, 10, 2))
sketch5.addConstraint(Sketcher.Constraint("Horizontal", 11, 2, 12, 2))
sketch5.addConstraint(Sketcher.Constraint("Horizontal", 9, 2, 14, 2))
sketch5.addConstraint(Sketcher.Constraint("Horizontal", 13, 2, 16, 2))
sketch5.addConstraint(Sketcher.Constraint("Horizontal", 15, 2, 18, 2))
sketch5.addConstraint(Sketcher.Constraint("Horizontal", 17, 2, 20, 2))
sketch5.addConstraint(Sketcher.Constraint("Horizontal", 19, 2, 22, 2))
sketch5.addConstraint(Sketcher.Constraint("Horizontal", 21, 2, 24, 2))
sketch5.addConstraint(Sketcher.Constraint("Horizontal", 23, 2, 26, 2))
sketch5.addConstraint(Sketcher.Constraint("Horizontal", 25, 2, 28, 2))
sketch5.addConstraint(Sketcher.Constraint("Horizontal", 27, 2, 30, 2))
sketch5.addConstraint(Sketcher.Constraint("Horizontal", 31, 2, 32, 2))
sketch5.addConstraint(Sketcher.Constraint("Horizontal", 29, 2, 34, 2))
sketch5.addConstraint(Sketcher.Constraint("Horizontal", 35, 2, 36, 2))
sketch5.addConstraint(Sketcher.Constraint("Horizontal", 33, 2, 38, 2))
sketch5.addConstraint(Sketcher.Constraint("Horizontal", 37, 2, 40, 2))
sketch5.addConstraint(Sketcher.Constraint("Horizontal", 39, 2, 42, 2))
sketch5.addConstraint(Sketcher.Constraint("Equal", 3, 5))
sketch5.addConstraint(Sketcher.Constraint("Equal", 7, 9))
sketch5.addConstraint(Sketcher.Constraint("Equal", 11, 13))
sketch5.addConstraint(Sketcher.Constraint("Equal", 15, 17))
sketch5.addConstraint(Sketcher.Constraint("Equal", 19, 21))
sketch5.addConstraint(Sketcher.Constraint("Equal", 23, 25))
sketch5.addConstraint(Sketcher.Constraint("Equal", 27, 29))
sketch5.addConstraint(Sketcher.Constraint("Equal", 31, 33))
sketch5.addConstraint(Sketcher.Constraint("Equal", 35, 37))
sketch5.addConstraint(Sketcher.Constraint("DistanceX", 1, 1, 1, 2, 16.0))
sketch5.addConstraint(Sketcher.Constraint("DistanceY", 0, 2, 0, 1, 4.0))
sketch5.addConstraint(Sketcher.Constraint("DistanceX", 41, 1, 41, 2, 12.8))
sketch5.addConstraint(Sketcher.Constraint("DistanceX", 1, 2, 4, 2, 36.0))
sketch5.addConstraint(Sketcher.Constraint("DistanceX", 6, 2, 8, 2, 52.0))
sketch5.addConstraint(Sketcher.Constraint("DistanceX", 12, 2, 0, 2, 104.0))
sketch5.addConstraint(Sketcher.Constraint("DistanceX", 13, 2, 16, 2, 36.0))
sketch5.addConstraint(Sketcher.Constraint("DistanceX", 17, 2, 20, 2, 10.0))
sketch5.addConstraint(Sketcher.Constraint("DistanceX", 13, 2, 24, 2, 10.0))
sketch5.addConstraint(Sketcher.Constraint("DistanceX", 28, 2, 12, 2, 26.0))
sketch5.addConstraint(Sketcher.Constraint("DistanceX", 32, 2, 9, 2, 10.0))
sketch5.addConstraint(Sketcher.Constraint("DistanceX", 1, 2, 36, 2, 10.0))
sketch5.addConstraint(Sketcher.Constraint("DistanceX", 41, 2, 28, 2, 6.0))
sketch5.addConstraint(Sketcher.Constraint("DistanceX", 0, 2, -1, 1, 100.85))
sketch5.addConstraint(Sketcher.Constraint("DistanceY", 0, 2, -1, 1, 29.15))
sketch5.setExpression("Constraints[117]", "Params.sketch5_width")
sketch5.setExpression("Constraints[118]", "Params.sketch5_height")
sketch5.setExpression("Constraints[119]", "Params.sketch5_width2")
pocket4 = doc.addObject("PartDesign::Pocket", "Pocket003")
body.addObject(pocket4)
pocket4.Profile = sketch5
pocket4.setExpression("Length", "Params.pocket4_length")

sketch6 = doc.addObject("Sketcher::SketchObject", "Sketch005")
body.addObject(sketch6)
sketch6.AttachmentSupport = (doc.XY_Plane, [""])
sketch6.MapMode = "FlatFace"
sketch6.AttachmentOffset = App.Placement(App.Vector(0, 0, 4), App.Rotation())
sketch6.addGeometry(Part.Circle(App.Vector(-53.9, -27.1, 0), App.Vector(0, 0, 1), 1.6), False)
sketch6.addGeometry(Part.Circle(App.Vector(-183.8, -27.1, 0), App.Vector(0, 0, 1), 1.6), False)
sketch6.addConstraint(Sketcher.Constraint("Equal", 0, 1))
sketch6.addConstraint(Sketcher.Constraint("Diameter", 0, 3.3))
sketch6.addConstraint(Sketcher.Constraint("DistanceX", 1, 3, -1, 1, 183.85))
sketch6.addConstraint(Sketcher.Constraint("DistanceY", 1, 3, -1, 1, 27.15))
sketch6.addConstraint(Sketcher.Constraint("DistanceX", 0, 3, -1, 1, 53.9092))
sketch6.addConstraint(Sketcher.Constraint("DistanceY", 0, 3, -1, 1, 27.1206))
sketch6.setExpression("Constraints[1]", "Params.sketch6_diameter")
pocket5 = doc.addObject("PartDesign::Pocket", "Pocket004")
body.addObject(pocket5)
pocket5.Profile = sketch6
pocket5.setExpression("Length", "Params.pocket5_length")

doc.recompute()
